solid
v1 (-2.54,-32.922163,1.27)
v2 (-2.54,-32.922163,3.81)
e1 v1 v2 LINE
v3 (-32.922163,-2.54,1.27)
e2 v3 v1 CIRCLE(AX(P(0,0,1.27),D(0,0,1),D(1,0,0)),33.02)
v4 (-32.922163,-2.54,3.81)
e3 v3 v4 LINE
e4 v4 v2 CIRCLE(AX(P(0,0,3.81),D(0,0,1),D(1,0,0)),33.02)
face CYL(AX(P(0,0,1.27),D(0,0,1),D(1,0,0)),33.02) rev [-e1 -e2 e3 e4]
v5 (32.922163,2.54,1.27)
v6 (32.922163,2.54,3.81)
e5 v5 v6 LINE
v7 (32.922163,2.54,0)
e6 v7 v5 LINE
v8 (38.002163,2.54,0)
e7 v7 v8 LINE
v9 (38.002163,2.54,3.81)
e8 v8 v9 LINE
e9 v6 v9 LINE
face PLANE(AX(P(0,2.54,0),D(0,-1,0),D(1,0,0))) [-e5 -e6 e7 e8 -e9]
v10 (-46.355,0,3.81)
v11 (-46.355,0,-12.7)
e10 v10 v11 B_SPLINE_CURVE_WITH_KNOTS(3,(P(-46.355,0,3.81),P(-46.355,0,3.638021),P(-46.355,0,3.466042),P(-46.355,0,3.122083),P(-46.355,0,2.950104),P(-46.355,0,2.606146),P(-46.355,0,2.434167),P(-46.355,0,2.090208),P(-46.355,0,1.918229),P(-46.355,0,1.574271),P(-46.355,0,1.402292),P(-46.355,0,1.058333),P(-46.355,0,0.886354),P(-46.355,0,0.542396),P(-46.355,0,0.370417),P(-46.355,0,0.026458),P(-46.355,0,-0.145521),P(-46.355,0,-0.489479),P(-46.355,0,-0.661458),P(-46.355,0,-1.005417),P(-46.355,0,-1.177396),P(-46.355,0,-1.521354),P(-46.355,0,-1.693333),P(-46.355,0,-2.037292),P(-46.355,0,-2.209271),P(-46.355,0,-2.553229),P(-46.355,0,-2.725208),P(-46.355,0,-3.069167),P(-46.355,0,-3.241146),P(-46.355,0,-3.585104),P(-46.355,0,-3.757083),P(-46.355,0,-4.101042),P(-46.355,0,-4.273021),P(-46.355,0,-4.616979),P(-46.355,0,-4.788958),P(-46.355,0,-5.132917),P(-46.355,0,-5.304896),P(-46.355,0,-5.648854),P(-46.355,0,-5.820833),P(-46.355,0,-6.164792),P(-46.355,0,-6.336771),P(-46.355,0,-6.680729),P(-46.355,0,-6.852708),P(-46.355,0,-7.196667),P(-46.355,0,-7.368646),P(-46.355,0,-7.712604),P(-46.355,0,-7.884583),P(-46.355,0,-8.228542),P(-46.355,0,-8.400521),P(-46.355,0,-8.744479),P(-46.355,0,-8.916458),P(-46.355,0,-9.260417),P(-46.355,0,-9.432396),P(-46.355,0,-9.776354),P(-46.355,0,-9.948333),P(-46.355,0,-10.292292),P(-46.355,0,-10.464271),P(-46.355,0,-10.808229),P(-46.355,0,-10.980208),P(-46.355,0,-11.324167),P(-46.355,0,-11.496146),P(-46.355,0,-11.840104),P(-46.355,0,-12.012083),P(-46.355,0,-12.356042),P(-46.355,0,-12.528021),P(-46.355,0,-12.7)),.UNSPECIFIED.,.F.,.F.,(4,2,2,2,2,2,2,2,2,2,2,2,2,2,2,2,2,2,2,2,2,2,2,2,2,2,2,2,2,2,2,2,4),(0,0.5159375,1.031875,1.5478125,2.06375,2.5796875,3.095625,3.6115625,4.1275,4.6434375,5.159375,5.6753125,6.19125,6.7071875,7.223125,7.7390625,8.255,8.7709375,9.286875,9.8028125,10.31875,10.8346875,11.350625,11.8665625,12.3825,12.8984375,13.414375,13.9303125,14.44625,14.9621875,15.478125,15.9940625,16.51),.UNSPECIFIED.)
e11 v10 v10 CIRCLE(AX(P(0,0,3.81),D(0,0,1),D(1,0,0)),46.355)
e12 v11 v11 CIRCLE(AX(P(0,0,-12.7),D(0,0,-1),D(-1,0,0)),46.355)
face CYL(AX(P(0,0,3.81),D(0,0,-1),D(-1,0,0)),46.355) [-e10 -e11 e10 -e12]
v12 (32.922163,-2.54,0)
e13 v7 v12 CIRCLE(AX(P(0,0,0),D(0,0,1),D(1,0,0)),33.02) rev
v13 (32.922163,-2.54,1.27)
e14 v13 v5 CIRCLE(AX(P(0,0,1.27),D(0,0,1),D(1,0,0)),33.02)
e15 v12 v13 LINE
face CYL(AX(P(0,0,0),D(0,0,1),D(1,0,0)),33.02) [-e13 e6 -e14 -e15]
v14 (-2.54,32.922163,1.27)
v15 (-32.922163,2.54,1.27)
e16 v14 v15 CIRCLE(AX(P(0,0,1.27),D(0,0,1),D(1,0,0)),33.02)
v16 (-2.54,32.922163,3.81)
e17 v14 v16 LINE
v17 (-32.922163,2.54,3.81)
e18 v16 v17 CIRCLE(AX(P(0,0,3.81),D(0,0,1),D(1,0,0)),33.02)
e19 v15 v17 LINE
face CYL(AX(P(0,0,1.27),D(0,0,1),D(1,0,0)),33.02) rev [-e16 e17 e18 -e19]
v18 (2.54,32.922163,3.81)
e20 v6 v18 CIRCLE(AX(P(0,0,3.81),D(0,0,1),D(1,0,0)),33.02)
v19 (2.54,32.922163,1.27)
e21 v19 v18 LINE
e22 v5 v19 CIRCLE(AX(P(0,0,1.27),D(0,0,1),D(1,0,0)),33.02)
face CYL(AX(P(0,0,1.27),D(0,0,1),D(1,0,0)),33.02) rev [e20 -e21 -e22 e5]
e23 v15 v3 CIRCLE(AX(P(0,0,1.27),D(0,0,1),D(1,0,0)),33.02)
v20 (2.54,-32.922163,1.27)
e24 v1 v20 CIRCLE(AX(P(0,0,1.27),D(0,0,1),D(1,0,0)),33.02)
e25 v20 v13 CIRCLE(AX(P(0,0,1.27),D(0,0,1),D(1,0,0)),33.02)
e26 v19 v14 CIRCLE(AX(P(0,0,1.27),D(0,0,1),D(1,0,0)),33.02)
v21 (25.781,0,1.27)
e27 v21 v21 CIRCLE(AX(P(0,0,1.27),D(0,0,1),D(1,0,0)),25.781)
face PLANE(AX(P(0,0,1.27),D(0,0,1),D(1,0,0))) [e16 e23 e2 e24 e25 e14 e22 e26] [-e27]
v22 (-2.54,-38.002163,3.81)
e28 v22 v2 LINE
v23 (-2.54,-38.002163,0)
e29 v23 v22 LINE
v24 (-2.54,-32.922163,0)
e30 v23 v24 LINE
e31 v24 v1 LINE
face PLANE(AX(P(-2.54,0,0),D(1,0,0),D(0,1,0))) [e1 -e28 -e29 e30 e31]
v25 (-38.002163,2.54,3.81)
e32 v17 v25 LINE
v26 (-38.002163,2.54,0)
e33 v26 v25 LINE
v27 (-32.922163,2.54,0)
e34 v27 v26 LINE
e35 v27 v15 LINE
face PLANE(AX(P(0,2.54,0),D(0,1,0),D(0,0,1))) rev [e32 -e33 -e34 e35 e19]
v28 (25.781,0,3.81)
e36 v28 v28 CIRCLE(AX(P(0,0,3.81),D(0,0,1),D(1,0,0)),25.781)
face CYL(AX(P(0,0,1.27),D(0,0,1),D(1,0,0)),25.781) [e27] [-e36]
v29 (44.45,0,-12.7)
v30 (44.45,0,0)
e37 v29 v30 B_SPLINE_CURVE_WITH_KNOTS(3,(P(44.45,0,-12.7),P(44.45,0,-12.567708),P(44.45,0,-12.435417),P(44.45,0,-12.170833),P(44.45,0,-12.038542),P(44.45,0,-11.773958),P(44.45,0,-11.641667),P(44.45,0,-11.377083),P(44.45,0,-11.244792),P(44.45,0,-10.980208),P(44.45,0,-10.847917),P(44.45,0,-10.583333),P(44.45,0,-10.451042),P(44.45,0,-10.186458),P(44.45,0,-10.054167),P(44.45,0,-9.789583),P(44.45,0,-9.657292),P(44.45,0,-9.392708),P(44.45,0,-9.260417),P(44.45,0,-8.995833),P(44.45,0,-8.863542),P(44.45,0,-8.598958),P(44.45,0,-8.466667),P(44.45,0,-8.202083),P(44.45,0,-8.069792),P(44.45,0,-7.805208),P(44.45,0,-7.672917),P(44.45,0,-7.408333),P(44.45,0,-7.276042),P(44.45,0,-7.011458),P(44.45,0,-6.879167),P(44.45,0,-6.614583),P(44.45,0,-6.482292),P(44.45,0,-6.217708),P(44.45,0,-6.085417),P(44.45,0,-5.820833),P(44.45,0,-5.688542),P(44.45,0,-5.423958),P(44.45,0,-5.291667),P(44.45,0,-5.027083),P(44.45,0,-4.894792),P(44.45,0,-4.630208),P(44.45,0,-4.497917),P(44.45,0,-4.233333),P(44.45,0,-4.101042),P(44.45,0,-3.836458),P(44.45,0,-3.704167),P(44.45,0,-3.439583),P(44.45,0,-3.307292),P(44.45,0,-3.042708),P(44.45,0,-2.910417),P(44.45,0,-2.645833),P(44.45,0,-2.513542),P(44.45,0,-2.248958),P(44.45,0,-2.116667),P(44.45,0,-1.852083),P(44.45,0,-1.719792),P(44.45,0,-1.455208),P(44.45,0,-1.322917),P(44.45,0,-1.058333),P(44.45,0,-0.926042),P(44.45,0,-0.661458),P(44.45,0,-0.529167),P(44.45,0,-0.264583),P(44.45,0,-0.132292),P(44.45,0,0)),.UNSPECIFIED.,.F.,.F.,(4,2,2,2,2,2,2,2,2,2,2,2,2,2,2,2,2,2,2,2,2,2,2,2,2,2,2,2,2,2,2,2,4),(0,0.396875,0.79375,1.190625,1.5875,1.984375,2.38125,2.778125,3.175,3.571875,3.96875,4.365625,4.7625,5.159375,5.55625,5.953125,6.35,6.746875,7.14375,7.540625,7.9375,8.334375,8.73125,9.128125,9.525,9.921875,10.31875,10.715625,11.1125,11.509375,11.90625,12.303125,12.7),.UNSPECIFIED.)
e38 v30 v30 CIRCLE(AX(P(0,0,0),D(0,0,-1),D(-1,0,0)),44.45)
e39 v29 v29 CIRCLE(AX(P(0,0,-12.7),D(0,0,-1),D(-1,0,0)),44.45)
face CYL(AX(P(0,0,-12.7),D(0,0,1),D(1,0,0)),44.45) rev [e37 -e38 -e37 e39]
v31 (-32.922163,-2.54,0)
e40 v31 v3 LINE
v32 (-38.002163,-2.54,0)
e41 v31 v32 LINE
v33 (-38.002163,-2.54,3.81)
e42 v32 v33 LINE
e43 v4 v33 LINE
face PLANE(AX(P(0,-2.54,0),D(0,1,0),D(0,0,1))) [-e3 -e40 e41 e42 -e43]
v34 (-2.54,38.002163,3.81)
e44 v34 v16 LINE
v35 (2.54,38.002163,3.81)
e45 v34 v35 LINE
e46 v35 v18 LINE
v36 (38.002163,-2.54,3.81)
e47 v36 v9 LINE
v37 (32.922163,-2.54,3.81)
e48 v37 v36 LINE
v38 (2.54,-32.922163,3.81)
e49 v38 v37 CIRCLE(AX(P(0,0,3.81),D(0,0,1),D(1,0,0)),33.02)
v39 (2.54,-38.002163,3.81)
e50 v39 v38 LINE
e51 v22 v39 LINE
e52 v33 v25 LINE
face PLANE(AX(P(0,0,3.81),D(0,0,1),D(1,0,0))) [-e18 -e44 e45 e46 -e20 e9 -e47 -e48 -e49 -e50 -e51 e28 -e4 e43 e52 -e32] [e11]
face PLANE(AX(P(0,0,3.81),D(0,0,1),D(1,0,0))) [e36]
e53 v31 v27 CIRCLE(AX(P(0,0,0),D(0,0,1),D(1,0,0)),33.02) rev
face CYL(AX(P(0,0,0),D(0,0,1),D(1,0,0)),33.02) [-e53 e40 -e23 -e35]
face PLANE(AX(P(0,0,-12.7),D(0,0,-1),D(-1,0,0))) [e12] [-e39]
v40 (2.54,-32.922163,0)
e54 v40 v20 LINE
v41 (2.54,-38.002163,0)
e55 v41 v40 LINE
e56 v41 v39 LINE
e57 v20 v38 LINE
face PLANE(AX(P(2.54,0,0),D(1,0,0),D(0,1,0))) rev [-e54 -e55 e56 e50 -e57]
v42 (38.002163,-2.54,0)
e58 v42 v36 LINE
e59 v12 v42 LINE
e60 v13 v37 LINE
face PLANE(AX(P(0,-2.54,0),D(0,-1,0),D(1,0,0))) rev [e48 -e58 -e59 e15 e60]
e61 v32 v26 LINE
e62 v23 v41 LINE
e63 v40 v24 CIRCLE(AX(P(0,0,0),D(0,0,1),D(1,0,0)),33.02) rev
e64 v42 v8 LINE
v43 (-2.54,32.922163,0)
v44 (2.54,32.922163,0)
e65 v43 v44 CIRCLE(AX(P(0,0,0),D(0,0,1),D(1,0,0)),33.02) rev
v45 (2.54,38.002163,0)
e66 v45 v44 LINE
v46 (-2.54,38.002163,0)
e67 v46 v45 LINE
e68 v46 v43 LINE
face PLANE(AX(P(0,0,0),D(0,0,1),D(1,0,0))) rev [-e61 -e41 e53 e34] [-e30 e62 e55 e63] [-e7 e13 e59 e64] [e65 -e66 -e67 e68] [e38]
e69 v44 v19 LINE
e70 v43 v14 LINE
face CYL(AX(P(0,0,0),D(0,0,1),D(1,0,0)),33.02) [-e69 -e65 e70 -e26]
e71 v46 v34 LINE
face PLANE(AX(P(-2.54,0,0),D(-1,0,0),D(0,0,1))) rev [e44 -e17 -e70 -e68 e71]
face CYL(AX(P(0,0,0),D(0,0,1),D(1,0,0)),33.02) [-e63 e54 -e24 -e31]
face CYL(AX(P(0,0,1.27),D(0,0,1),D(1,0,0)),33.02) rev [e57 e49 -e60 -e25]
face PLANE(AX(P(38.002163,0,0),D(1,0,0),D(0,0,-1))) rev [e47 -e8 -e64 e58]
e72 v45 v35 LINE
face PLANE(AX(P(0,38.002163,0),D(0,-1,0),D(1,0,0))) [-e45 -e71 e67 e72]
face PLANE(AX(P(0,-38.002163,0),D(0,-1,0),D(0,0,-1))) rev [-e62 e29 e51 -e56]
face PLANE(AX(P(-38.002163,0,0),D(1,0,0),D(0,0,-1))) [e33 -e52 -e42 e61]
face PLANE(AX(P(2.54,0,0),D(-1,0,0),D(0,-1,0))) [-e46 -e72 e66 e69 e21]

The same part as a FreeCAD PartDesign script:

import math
import FreeCAD as App
import Part
import Sketcher
from FreeCAD import Vector
Q = App.Units.Quantity

doc = App.newDocument("Part")
body = doc.addObject("PartDesign::Body", "Body")

# Sketch on XY plane
sketch1 = doc.addObject("Sketcher::SketchObject", "Sketch")
body.addObject(sketch1)
sketch1.AttachmentSupport = (doc.XY_Plane, [""])
sketch1.MapMode = "FlatFace"
sketch1.addGeometry(Part.Circle(Vector(0, 0, 0), Vector(0, 0, 1), 46), False)
sketch1.addConstraint([
    Sketcher.Constraint("Coincident", 0, 3, -1, 1),
    Sketcher.Constraint("Diameter", 0, Q("3.65 in")),
])
pad1 = doc.addObject("PartDesign::Pad", "Pad")
body.addObject(pad1)
pad1.Profile = sketch1
pad1.Length = Q("0.15 in")

# Sketch on XY plane
sketch2 = doc.addObject("Sketcher::SketchObject", "Sketch001")
body.addObject(sketch2)
sketch2.AttachmentSupport = (doc.XY_Plane, [""])
sketch2.MapMode = "FlatFace"
sketch2.AttachmentOffset = App.Placement(Vector(0, 0, 0.15 * 25.4), App.Rotation())
sketch2.addGeometry([
    Part.Circle(Vector(0, 0, 0), Vector(0, 0, 1), 33),
    Part.Circle(Vector(0, 0, 0), Vector(0, 0, 1), 26),
], False)
sketch2.addConstraint([
    Sketcher.Constraint("Coincident", 0, 3, -1, 1),
    Sketcher.Constraint("Coincident", 1, 3, -1, 1),
    Sketcher.Constraint("Diameter", 0, Q("2.6 in")),
    Sketcher.Constraint("Diameter", 1, Q("2.03 in")),
])
pocket1 = doc.addObject("PartDesign::Pocket", "Pocket")
body.addObject(pocket1)
pocket1.Profile = sketch2
pocket1.Length = Q("0.1 in")

# Sketch on XY plane
sketch3 = doc.addObject("Sketcher::SketchObject", "Sketch002")
body.addObject(sketch3)
sketch3.AttachmentSupport = (doc.XY_Plane, [""])
sketch3.MapMode = "FlatFace"
sketch3.AttachmentOffset = App.Placement(Vector(0, 0, 0.15 * 25.4), App.Rotation())
sketch3.addGeometry([
    Part.ArcOfCircle(Part.Circle(Vector(0, 0, 0), Vector(0, 0, 1), 33), math.radians(85.59), math.radians(90)),  # 0
    Part.LineSegment(Vector(2.5, 32.9, 0), Vector(2.5, 38, 0)),  # 1
    Part.LineSegment(Vector(2.5, 38, 0), Vector(-2.5, 38, 0)),  # 2
    Part.LineSegment(Vector(-2.5, 38, 0), Vector(-2.5, 32.9, 0)),  # 3
    Part.ArcOfCircle(Part.Circle(Vector(0, 0, 0), Vector(0, 0, 1), 33), math.radians(90), math.radians(94.41)),  # 4
    Part.LineSegment(Vector(-38, -2.5, 0), Vector(-32.9, -2.5, 0)),  # 5
    Part.ArcOfCircle(Part.Circle(Vector(0, 0, 0), Vector(0, 0, 1), 33), math.radians(175.59), math.radians(184.41)),  # 6
    Part.LineSegment(Vector(-32.9, 2.5, 0), Vector(-38, 2.5, 0)),  # 7
    Part.LineSegment(Vector(-38, 2.5, 0), Vector(-38, -2.5, 0)),  # 8
    Part.LineSegment(Vector(2.5, -38, 0), Vector(2.5, -32.9, 0)),  # 9
    Part.ArcOfCircle(Part.Circle(Vector(0, 0, 0), Vector(0, 0, 1), 33), math.radians(-94.41), math.radians(-85.59)),  # 10
    Part.LineSegment(Vector(-2.5, -32.9, 0), Vector(-2.5, -38, 0)),  # 11
    Part.LineSegment(Vector(-2.5, -38, 0), Vector(2.5, -38, 0)),  # 12
    Part.ArcOfCircle(Part.Circle(Vector(0, 0, 0), Vector(0, 0, 1), 33), math.radians(-4.41), math.radians(0)),  # 13
    Part.LineSegment(Vector(32.9, -2.5, 0), Vector(38, -2.5, 0)),  # 14
    Part.LineSegment(Vector(38, -2.5, 0), Vector(38, 2.5, 0)),  # 15
    Part.LineSegment(Vector(38, 2.5, 0), Vector(32.9, 2.5, 0)),  # 16
    Part.ArcOfCircle(Part.Circle(Vector(0, 0, 0), Vector(0, 0, 1), 33), math.radians(0), math.radians(4.41)),  # 17
], False)
sketch3.addConstraint([
    Sketcher.Constraint("Coincident", 0, 1, 1, 1),
    Sketcher.Constraint("Coincident", 1, 2, 2, 1),
    Sketcher.Constraint("Coincident", 2, 2, 3, 1),
    Sketcher.Constraint("Coincident", 3, 2, 4, 2),
    Sketcher.Constraint("Tangent", 4, 1, 0, 2),
    Sketcher.Constraint("Coincident", 5, 2, 6, 2),
    Sketcher.Constraint("Coincident", 6, 1, 7, 1),
    Sketcher.Constraint("Coincident", 7, 2, 8, 1),
    Sketcher.Constraint("Coincident", 8, 2, 5, 1),
    Sketcher.Constraint("Coincident", 9, 2, 10, 2),
    Sketcher.Constraint("Coincident", 10, 1, 11, 1),
    Sketcher.Constraint("Coincident", 11, 2, 12, 1),
    Sketcher.Constraint("Coincident", 12, 2, 9, 1),
    Sketcher.Constraint("Coincident", 13, 1, 14, 1),
    Sketcher.Constraint("Coincident", 14, 2, 15, 1),
    Sketcher.Constraint("Coincident", 15, 2, 16, 1),
    Sketcher.Constraint("Coincident", 16, 2, 17, 2),
    Sketcher.Constraint("Tangent", 17, 1, 13, 2),
    Sketcher.Constraint("Vertical", 1),
    Sketcher.Constraint("Horizontal", 2),
    Sketcher.Constraint("Vertical", 3),
    Sketcher.Constraint("Horizontal", 5),
    Sketcher.Constraint("Horizontal", 7),
    Sketcher.Constraint("Vertical", 8),
    Sketcher.Constraint("Vertical", 9),
    Sketcher.Constraint("Vertical", 11),
    Sketcher.Constraint("Horizontal", 12),
    Sketcher.Constraint("Horizontal", 14),
    Sketcher.Constraint("Vertical", 15),
    Sketcher.Constraint("Horizontal", 16),
    Sketcher.Constraint("Coincident", 0, 3, -1, 1),
    Sketcher.Constraint("Coincident", 6, 3, -1, 1),
    Sketcher.Constraint("Coincident", 10, 3, -1, 1),
    Sketcher.Constraint("Coincident", 13, 3, -1, 1),
    Sketcher.Constraint("Equal", 0, 4),
    Sketcher.Constraint("Equal", 4, 6),
    Sketcher.Constraint("Equal", 6, 10),
    Sketcher.Constraint("Equal", 10, 13),
    Sketcher.Constraint("Equal", 13, 17),
    Sketcher.Constraint("Symmetric", 1, 2, 11, 2, -1, 1),
    Sketcher.Constraint("Symmetric", 7, 2, 14, 2, -1, 1),
    Sketcher.Constraint("PointOnObject", 4, 1, -2),
    Sketcher.Constraint("PointOnObject", 17, 1, -1),
    Sketcher.Constraint("Horizontal", 0, 1, 3, 2),
    Sketcher.Constraint("Horizontal", 9, 2, 10, 1),
    Sketcher.Constraint("Horizontal", 8, 2, 13, 1),
    Sketcher.Constraint("Horizontal", 7, 2, 15, 2),
    Sketcher.Constraint("Equal", 2, 5),
    Sketcher.Constraint("Equal", 16, 1),
    Sketcher.Constraint("Equal", 3, 8),
    Sketcher.Constraint("Radius", 0, Q("1.3 in")),
    Sketcher.Constraint("DistanceX", 2, 2, 2, 1, Q("0.2 in")),
])
pocket2 = doc.addObject("PartDesign::Pocket", "Pocket001")
body.addObject(pocket2)
pocket2.Profile = sketch3
pocket2.Type = "ThroughAll"

# Sketch on XY plane
sketch4 = doc.addObject("Sketcher::SketchObject", "Sketch003")
body.addObject(sketch4)
sketch4.AttachmentSupport = (doc.XY_Plane, [""])
sketch4.MapMode = "FlatFace"
sketch4.AttachmentOffset = App.Placement(Vector(0, 0, -0.5 * 25.4), App.Rotation())
sketch4.addGeometry([
    Part.Circle(Vector(0, 0, 0), Vector(0, 0, 1), 46),
    Part.Circle(Vector(0, 0, 0), Vector(0, 0, 1), 44),
], False)
sketch4.addConstraint([
    Sketcher.Constraint("Coincident", 0, 3, -1, 1),
    Sketcher.Constraint("Coincident", 1, 3, -1, 1),
    Sketcher.Constraint("Diameter", 1, Q("3.5 in")),
    Sketcher.Constraint("Diameter", 0, Q("3.65 in")),
])
pad2 = doc.addObject("PartDesign::Pad", "Pad001")
body.addObject(pad2)
pad2.Profile = sketch4
pad2.Length = Q("0.5 in")

doc.recompute()
